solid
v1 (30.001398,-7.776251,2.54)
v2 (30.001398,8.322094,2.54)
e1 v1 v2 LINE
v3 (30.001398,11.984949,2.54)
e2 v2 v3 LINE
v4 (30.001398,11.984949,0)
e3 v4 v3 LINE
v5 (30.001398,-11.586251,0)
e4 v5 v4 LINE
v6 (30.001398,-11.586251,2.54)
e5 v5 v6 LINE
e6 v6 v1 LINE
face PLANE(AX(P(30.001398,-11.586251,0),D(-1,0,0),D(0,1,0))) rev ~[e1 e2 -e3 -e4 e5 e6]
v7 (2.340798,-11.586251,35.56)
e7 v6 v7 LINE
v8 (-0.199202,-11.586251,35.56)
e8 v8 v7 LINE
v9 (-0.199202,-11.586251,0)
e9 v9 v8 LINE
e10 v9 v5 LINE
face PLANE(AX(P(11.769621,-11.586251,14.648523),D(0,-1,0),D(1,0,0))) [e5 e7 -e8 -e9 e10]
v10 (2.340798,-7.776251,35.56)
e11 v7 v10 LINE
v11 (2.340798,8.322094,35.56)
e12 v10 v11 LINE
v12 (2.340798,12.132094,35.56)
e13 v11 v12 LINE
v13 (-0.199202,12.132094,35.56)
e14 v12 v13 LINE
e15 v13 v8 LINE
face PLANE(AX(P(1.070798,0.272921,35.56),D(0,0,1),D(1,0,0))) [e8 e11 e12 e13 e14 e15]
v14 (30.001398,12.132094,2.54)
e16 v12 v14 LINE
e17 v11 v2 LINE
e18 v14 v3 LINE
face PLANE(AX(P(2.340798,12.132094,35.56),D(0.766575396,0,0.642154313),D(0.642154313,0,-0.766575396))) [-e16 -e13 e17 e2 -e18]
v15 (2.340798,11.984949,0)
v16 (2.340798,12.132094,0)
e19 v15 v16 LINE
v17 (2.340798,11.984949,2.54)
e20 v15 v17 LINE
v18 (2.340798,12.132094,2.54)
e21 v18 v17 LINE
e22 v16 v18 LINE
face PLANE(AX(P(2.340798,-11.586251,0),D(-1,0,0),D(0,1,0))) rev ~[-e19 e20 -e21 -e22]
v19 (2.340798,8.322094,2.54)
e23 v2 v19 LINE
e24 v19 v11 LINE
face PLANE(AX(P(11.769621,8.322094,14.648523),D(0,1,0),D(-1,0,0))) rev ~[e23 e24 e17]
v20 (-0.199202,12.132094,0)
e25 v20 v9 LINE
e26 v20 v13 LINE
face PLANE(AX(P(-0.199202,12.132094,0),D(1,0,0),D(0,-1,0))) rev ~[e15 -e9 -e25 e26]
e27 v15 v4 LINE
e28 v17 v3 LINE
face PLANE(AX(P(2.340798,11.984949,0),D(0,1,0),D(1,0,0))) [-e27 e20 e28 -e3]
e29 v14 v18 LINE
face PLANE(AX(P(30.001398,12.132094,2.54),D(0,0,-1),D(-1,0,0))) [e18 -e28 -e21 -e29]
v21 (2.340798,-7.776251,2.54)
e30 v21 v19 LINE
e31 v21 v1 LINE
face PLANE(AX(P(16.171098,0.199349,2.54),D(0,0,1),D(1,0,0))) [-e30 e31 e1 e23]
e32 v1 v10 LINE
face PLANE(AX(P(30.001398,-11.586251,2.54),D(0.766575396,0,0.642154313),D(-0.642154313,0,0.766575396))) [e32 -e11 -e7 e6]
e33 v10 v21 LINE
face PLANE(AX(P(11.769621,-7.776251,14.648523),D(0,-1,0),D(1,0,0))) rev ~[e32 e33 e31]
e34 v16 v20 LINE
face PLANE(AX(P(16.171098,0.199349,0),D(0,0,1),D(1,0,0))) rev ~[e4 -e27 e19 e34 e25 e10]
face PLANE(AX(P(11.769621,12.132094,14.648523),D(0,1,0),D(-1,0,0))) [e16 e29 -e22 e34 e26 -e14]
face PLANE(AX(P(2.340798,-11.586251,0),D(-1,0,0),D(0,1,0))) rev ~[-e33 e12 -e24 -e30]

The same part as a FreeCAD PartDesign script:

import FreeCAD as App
import Part
import Sketcher

V = App.Vector
Q = App.Units.Quantity


def add_polygon(sketch, points):
    """Adds a closed chain of lines whose ends are joined by coincident constraints."""
    first, n = sketch.GeometryCount, len(points)
    for a, b in zip(points, points[1:] + points[:1]):
        sketch.addGeometry(Part.LineSegment(App.Vector(*a, 0), App.Vector(*b, 0)), False)
    for i in range(n):
        sketch.addConstraint(Sketcher.Constraint("Coincident", first + i, 2, first + (i + 1) % n, 1))

doc = App.newDocument("Part")
body = doc.addObject("PartDesign::Body", "Body")

sketch1 = doc.addObject("Sketcher::SketchObject", "Sketch")
body.addObject(sketch1)
sketch1.AttachmentSupport = (doc.XY_Plane, [""])
sketch1.MapMode = "FlatFace"
add_polygon(sketch1, [(0, 12.258937), (0, -11.459408), (2.54, -11.459408), (2.54, 12.258937)])
sketch1.addConstraint([
    Sketcher.Constraint("Vertical", 0),
    Sketcher.Constraint("Horizontal", 1),
    Sketcher.Constraint("Vertical", 2),
    Sketcher.Constraint("Horizontal", 3),
    Sketcher.Constraint("PointOnObject", 0, 2, -2),
    Sketcher.Constraint("DistanceX", 1, 1, 1, 2, Q("0.1 in")),
    Sketcher.Constraint("DistanceY", 0, 2, 0, 1, 23.718345),
    Sketcher.Constraint("DistanceY", 0, 2, -1, 1, 11.459408),
])
pad1 = doc.addObject("PartDesign::Pad", "Pad")
body.addObject(pad1)
pad1.Profile = sketch1
pad1.Length = Q("1.4 in")
body2 = doc.addObject("PartDesign::Body", "Body001")
doc.recompute()

body.Placement = App.Placement(V(-0.199202, -0.126843, 0), App.Rotation(V(0, 0, 1), 0))
boolean = doc.addObject("PartDesign::Boolean", "Boolean")
body2.addObject(boolean)
boolean.Type = "Fuse"
boolean.addObjects([body])

sketch2 = doc.addObject("Sketcher::SketchObject", "Sketch001")
body2.addObject(sketch2)
sketch2.AttachmentSupport = (doc.getObject("XY_Plane001"), [""])
sketch2.MapMode = "FlatFace"
add_polygon(sketch2, [(2.340798, 11.984949), (2.340798, -11.586251), (30.001398, -11.586251), (30.001398, 11.984949)])
sketch2.addConstraint([
    Sketcher.Constraint("Vertical", 0),
    Sketcher.Constraint("Horizontal", 1),
    Sketcher.Constraint("Vertical", 2),
    Sketcher.Constraint("Horizontal", 3),
    Sketcher.Constraint("DistanceX", 1, 1, 1, 2, Q("1.089 in")),
    Sketcher.Constraint("DistanceY", 0, 2, 0, 1, Q("0.928 in")),
    Sketcher.Constraint("DistanceY", 0, 2, -1, 1, 11.586251),
    Sketcher.Constraint("DistanceX", -1, 1, 0, 2, 2.340798),
])
pad2 = doc.addObject("PartDesign::Pad", "Pad001")
body2.addObject(pad2)
pad2.Profile = sketch2
pad2.Length = Q("0.1 in")

sketch3 = doc.addObject("Sketcher::SketchObject", "Sketch002")
body2.addObject(sketch3)
sketch3.AttachmentSupport = (doc.getObject("XZ_Plane001"), [""])
sketch3.MapMode = "FlatFace"
sketch3.AttachmentOffset = App.Placement(V(0, 0, 11.586251), App.Rotation())
add_polygon(sketch3, [(30.001398, 2.54), (2.340798, 35.56), (2.340798, 2.54)])
sketch3.addConstraint([
    Sketcher.Constraint("Vertical", 1),
    Sketcher.Constraint("Horizontal", 2),
    Sketcher.Constraint("DistanceY", 1, 2, 1, 1, Q("1.3 in")),
    Sketcher.Constraint("DistanceY", -1, 1, 0, 2, Q("1.4 in")),
    Sketcher.Constraint("DistanceX", 2, 1, 2, 2, Q("1.089 in")),
    Sketcher.Constraint("DistanceX", -1, 1, 0, 2, 2.340798),
])
pad3 = doc.addObject("PartDesign::Pad", "Pad002")
body2.addObject(pad3)
pad3.Profile = sketch3
pad3.Length = Q("0.15 in")
pad3.Reversed = True

sketch4 = doc.addObject("Sketcher::SketchObject", "Sketch003")
body2.addObject(sketch4)
sketch4.AttachmentSupport = (doc.getObject("XZ_Plane001"), [""])
sketch4.MapMode = "FlatFace"
sketch4.AttachmentOffset = App.Placement(V(0, 0, -12.132094), App.Rotation())
add_polygon(sketch4, [(2.340798, 35.56), (30.001398, 2.54), (2.340798, 2.54)])
sketch4.addConstraint([
    Sketcher.Constraint("Horizontal", 1),
    Sketcher.Constraint("Vertical", 2),
    Sketcher.Constraint("DistanceY", 2, 1, 2, 2, Q("1.3 in")),
    Sketcher.Constraint("DistanceY", -1, 1, 0, 2, Q("0.1 in")),
    Sketcher.Constraint("DistanceX", 1, 2, 1, 1, Q("1.089 in")),
    Sketcher.Constraint("DistanceX", -1, 1, 0, 2, 30.001398),
])
pad4 = doc.addObject("PartDesign::Pad", "Pad003")
body2.addObject(pad4)
pad4.Profile = sketch4
pad4.Length = Q("0.15 in")

doc.recompute()
